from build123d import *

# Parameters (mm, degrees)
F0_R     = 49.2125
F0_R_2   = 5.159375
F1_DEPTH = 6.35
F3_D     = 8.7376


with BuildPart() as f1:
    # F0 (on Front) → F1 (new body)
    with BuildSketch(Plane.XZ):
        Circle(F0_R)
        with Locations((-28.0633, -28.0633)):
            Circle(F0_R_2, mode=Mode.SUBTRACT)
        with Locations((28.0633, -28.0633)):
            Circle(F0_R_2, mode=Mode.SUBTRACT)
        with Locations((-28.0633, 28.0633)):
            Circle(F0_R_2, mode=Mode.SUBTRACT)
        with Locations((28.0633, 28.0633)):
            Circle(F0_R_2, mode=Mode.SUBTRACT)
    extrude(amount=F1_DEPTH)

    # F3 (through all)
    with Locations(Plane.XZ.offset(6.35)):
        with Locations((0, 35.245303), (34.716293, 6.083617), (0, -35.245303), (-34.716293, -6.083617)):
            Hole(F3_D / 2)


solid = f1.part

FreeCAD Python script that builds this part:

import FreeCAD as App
import Part
import Sketcher
Q = App.Units.Quantity

doc = App.newDocument("Part")
params = doc.addObject("Spreadsheet::Sheet", "Params")
for row, (alias, value) in enumerate([
    ("sketch1_diameter", "3.875 in"),
    ("sketch1_diameter2", "0.40625 in"),
    ("pad1_length", "0.25 in"),
    ("sketch2_diameter", "0.344 in"),
    ("hole_diameter", "0.344 in"),
], start=1):
    params.set(f"A{row}", alias)
    params.set(f"B{row}", "=" + value)
    params.setAlias(f"B{row}", alias)

body = doc.addObject("PartDesign::Body", "Body")

sketch1 = doc.addObject("Sketcher::SketchObject", "Sketch")
body.addObject(sketch1)
sketch1.AttachmentSupport = (doc.XZ_Plane, [""])
sketch1.MapMode = "FlatFace"
sketch1.addGeometry(Part.Circle(App.Vector(0, 0, 0), App.Vector(0, 0, 1), 49.2125), False)
sketch1.addGeometry(Part.Circle(App.Vector(-28.0633, -28.0633, 0), App.Vector(0, 0, 1), 5.159375), False)
sketch1.addGeometry(Part.Circle(App.Vector(28.0633, -28.0633, 0), App.Vector(0, 0, 1), 5.159375), False)
sketch1.addGeometry(Part.Circle(App.Vector(-28.0633, 28.0633, 0), App.Vector(0, 0, 1), 5.159375), False)
sketch1.addGeometry(Part.Circle(App.Vector(28.0633, 28.0633, 0), App.Vector(0, 0, 1), 5.159375), False)
sketch1.addConstraint(Sketcher.Constraint("Coincident", 0, 3, -1, 1))
sketch1.addConstraint(Sketcher.Constraint("Equal", 1, 2))
sketch1.addConstraint(Sketcher.Constraint("Equal", 2, 3))
sketch1.addConstraint(Sketcher.Constraint("Equal", 3, 4))
sketch1.addConstraint(Sketcher.Constraint("Symmetric", 2, 3, 3, 3, -1, 1))
sketch1.addConstraint(Sketcher.Constraint("Symmetric", 1, 3, 4, 3, -1, 1))
sketch1.addConstraint(Sketcher.Constraint("Symmetric", 1, 3, 2, 3, -2))
sketch1.addConstraint(Sketcher.Constraint("Diameter", 0, Q("3.875 in")))
sketch1.addConstraint(Sketcher.Constraint("Diameter", 1, Q("0.40625 in")))
sketch1.addConstraint(Sketcher.Constraint("DistanceX", 1, 3, -1, 1, 28.0633))
sketch1.addConstraint(Sketcher.Constraint("DistanceY", 1, 3, -1, 1, 28.0633))
sketch1.setExpression("Constraints[7]", "Params.sketch1_diameter")
sketch1.setExpression("Constraints[8]", "Params.sketch1_diameter2")
pad1 = doc.addObject("PartDesign::Pad", "Pad")
body.addObject(pad1)
pad1.Profile = sketch1
pad1.setExpression("Length", "Params.pad1_length")

sketch2 = doc.addObject("Sketcher::SketchObject", "Sketch001")
body.addObject(sketch2)
sketch2.AttachmentSupport = (doc.XZ_Plane, [""])
sketch2.MapMode = "FlatFace"
sketch2.AttachmentOffset = App.Placement(App.Vector(0, 0, 0.25 * 25.4), App.Rotation())
sketch2.addGeometry(Part.Circle(App.Vector(0, 35.245303, 0), App.Vector(0, 0, 1), 4.3688), False)
sketch2.addGeometry(Part.Circle(App.Vector(34.716293, 6.083617, 0), App.Vector(0, 0, 1), 4.3688), False)
sketch2.addGeometry(Part.Circle(App.Vector(0, -35.245303, 0), App.Vector(0, 0, 1), 4.3688), False)
sketch2.addGeometry(Part.Circle(App.Vector(-34.716293, -6.083617, 0), App.Vector(0, 0, 1), 4.3688), False)
sketch2.addConstraint(Sketcher.Constraint("Equal", 0, 1))
sketch2.addConstraint(Sketcher.Constraint("Equal", 1, 2))
sketch2.addConstraint(Sketcher.Constraint("Equal", 2, 3))
sketch2.addConstraint(Sketcher.Constraint("Symmetric", 0, 3, 2, 3, -1, 1))
sketch2.addConstraint(Sketcher.Constraint("Symmetric", 1, 3, 3, 3, -1, 1))
sketch2.addConstraint(Sketcher.Constraint("PointOnObject", 0, 3, -2))
sketch2.addConstraint(Sketcher.Constraint("Diameter", 0, Q("0.344 in")))
sketch2.addConstraint(Sketcher.Constraint("DistanceY", 2, 3, 1, 3, 41.32892))
sketch2.addConstraint(Sketcher.Constraint("DistanceY", -1, 1, 0, 3, 35.245303))
sketch2.addConstraint(Sketcher.Constraint("DistanceX", -1, 1, 1, 3, 34.716293))
sketch2.setExpression("Constraints[6]", "Params.sketch2_diameter")
doc.recompute()
hole = doc.addObject("PartDesign::Hole", "Hole")
body.addObject(hole)
hole.Profile = sketch2
hole.ThreadType = "None"
hole.setExpression("Diameter", "Params.hole_diameter")
hole.DepthType = "ThroughAll"

doc.recompute()
